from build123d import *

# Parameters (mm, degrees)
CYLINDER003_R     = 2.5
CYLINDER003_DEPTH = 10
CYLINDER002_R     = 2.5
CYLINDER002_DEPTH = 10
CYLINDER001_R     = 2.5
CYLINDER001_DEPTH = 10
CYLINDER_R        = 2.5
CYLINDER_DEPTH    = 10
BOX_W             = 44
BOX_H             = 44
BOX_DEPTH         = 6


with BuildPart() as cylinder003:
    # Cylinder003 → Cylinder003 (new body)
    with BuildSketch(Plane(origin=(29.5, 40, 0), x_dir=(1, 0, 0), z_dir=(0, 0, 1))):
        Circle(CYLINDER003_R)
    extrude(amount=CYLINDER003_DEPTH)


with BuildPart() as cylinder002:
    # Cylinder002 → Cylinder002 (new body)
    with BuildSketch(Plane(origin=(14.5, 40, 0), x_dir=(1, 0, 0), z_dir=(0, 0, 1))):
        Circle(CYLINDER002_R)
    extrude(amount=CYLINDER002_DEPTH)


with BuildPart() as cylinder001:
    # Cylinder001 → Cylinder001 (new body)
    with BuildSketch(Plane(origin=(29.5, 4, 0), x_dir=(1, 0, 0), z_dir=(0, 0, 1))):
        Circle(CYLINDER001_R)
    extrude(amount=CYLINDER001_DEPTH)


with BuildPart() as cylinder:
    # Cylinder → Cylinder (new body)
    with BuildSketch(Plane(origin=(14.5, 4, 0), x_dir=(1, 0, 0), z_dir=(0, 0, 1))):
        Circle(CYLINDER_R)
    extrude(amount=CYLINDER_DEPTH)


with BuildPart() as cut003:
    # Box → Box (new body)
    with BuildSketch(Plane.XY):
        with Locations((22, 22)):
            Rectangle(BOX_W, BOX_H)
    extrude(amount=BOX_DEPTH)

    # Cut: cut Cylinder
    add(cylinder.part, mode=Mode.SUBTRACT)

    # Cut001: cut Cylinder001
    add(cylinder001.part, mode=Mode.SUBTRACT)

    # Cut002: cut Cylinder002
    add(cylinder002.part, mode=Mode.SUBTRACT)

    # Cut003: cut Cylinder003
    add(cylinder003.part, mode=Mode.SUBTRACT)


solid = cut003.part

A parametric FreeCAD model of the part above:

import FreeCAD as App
import Part
import Sketcher

doc = App.newDocument("Part")
body = doc.addObject("PartDesign::Body", "Body")

# Sketch on XY plane
sketch1 = body.newObject("Sketcher::SketchObject", "Sketch")
sketch1.AttachmentSupport = (doc.getObject("XY_Plane"), [""])
sketch1.MapMode = "FlatFace"
sketch1.addGeometry(Part.Circle(App.Vector(29.5, 40, 0), App.Vector(0, 0, 1), 2.5), False)
sketch1.addConstraint([
    Sketcher.Constraint("Diameter", 0, 5.0),
    Sketcher.Constraint("DistanceY", -1, 1, 0, 3, 40.0),
    Sketcher.Constraint("DistanceX", -1, 1, 0, 3, 29.5),
])
pad1 = body.newObject("PartDesign::Pad", "Pad")
pad1.Profile = sketch1
pad1.Length = 10
body2 = doc.addObject("PartDesign::Body", "Body001")

# Sketch on XY plane
sketch2 = body2.newObject("Sketcher::SketchObject", "Sketch001")
sketch2.AttachmentSupport = (doc.getObject("XY_Plane001"), [""])
sketch2.MapMode = "FlatFace"
sketch2.addGeometry(Part.Circle(App.Vector(14.5, 40, 0), App.Vector(0, 0, 1), 2.5), False)
sketch2.addConstraint([
    Sketcher.Constraint("Diameter", 0, 5.0),
    Sketcher.Constraint("DistanceY", -1, 1, 0, 3, 40.0),
    Sketcher.Constraint("DistanceX", -1, 1, 0, 3, 14.5),
])
pad2 = body2.newObject("PartDesign::Pad", "Pad001")
pad2.Profile = sketch2
pad2.Length = 10
body3 = doc.addObject("PartDesign::Body", "Body002")

# Sketch on XY plane
sketch3 = body3.newObject("Sketcher::SketchObject", "Sketch002")
sketch3.AttachmentSupport = (doc.getObject("XY_Plane002"), [""])
sketch3.MapMode = "FlatFace"
sketch3.addGeometry(Part.Circle(App.Vector(29.5, 4, 0), App.Vector(0, 0, 1), 2.5), False)
sketch3.addConstraint([
    Sketcher.Constraint("Diameter", 0, 5.0),
    Sketcher.Constraint("DistanceY", -1, 1, 0, 3, 4.0),
    Sketcher.Constraint("DistanceX", -1, 1, 0, 3, 29.5),
])
pad3 = body3.newObject("PartDesign::Pad", "Pad002")
pad3.Profile = sketch3
pad3.Length = 10
body4 = doc.addObject("PartDesign::Body", "Body003")

# Sketch on XY plane
sketch4 = body4.newObject("Sketcher::SketchObject", "Sketch003")
sketch4.AttachmentSupport = (doc.getObject("XY_Plane003"), [""])
sketch4.MapMode = "FlatFace"
sketch4.addGeometry(Part.Circle(App.Vector(14.5, 4, 0), App.Vector(0, 0, 1), 2.5), False)
sketch4.addConstraint([
    Sketcher.Constraint("Diameter", 0, 5.0),
    Sketcher.Constraint("DistanceY", -1, 1, 0, 3, 4.0),
    Sketcher.Constraint("DistanceX", -1, 1, 0, 3, 14.5),
])
pad4 = body4.newObject("PartDesign::Pad", "Pad003")
pad4.Profile = sketch4
pad4.Length = 10
body5 = doc.addObject("PartDesign::Body", "Body004")

# Sketch on XY plane
sketch5 = body5.newObject("Sketcher::SketchObject", "Sketch004")
sketch5.AttachmentSupport = (doc.getObject("XY_Plane004"), [""])
sketch5.MapMode = "FlatFace"
sketch5.addGeometry([
    Part.LineSegment(App.Vector(0, 44, 0), App.Vector(0, 0, 0)),
    Part.LineSegment(App.Vector(0, 0, 0), App.Vector(44, 0, 0)),
    Part.LineSegment(App.Vector(44, 0, 0), App.Vector(44, 44, 0)),
    Part.LineSegment(App.Vector(44, 44, 0), App.Vector(0, 44, 0)),
], False)
sketch5.addConstraint([
    Sketcher.Constraint("Coincident", 0, 2, 1, 1),
    Sketcher.Constraint("Coincident", 1, 2, 2, 1),
    Sketcher.Constraint("Coincident", 2, 2, 3, 1),
    Sketcher.Constraint("Coincident", 3, 2, 0, 1),
    Sketcher.Constraint("Vertical", 0),
    Sketcher.Constraint("Horizontal", 1),
    Sketcher.Constraint("Vertical", 2),
    Sketcher.Constraint("Horizontal", 3),
    Sketcher.Constraint("Coincident", 0, 2, -1, 1),
    Sketcher.Constraint("Equal", 3, 0),
    Sketcher.Constraint("DistanceX", 1, 1, 1, 2, 44.0),
])
pad5 = body5.newObject("PartDesign::Pad", "Pad004")
pad5.Profile = sketch5
pad5.Length = 6
doc.recompute()

boolean = body5.newObject("PartDesign::Boolean", "Boolean")
boolean.Type = "Cut"
boolean.addObjects([body4])
doc.recompute()

boolean2 = body5.newObject("PartDesign::Boolean", "Boolean001")
boolean2.Type = "Cut"
boolean2.addObjects([body3])
doc.recompute()

boolean3 = body5.newObject("PartDesign::Boolean", "Boolean002")
boolean3.Type = "Cut"
boolean3.addObjects([body2])
doc.recompute()

boolean4 = body5.newObject("PartDesign::Boolean", "Boolean003")
boolean4.Type = "Cut"
boolean4.addObjects([body])

doc.recompute()
